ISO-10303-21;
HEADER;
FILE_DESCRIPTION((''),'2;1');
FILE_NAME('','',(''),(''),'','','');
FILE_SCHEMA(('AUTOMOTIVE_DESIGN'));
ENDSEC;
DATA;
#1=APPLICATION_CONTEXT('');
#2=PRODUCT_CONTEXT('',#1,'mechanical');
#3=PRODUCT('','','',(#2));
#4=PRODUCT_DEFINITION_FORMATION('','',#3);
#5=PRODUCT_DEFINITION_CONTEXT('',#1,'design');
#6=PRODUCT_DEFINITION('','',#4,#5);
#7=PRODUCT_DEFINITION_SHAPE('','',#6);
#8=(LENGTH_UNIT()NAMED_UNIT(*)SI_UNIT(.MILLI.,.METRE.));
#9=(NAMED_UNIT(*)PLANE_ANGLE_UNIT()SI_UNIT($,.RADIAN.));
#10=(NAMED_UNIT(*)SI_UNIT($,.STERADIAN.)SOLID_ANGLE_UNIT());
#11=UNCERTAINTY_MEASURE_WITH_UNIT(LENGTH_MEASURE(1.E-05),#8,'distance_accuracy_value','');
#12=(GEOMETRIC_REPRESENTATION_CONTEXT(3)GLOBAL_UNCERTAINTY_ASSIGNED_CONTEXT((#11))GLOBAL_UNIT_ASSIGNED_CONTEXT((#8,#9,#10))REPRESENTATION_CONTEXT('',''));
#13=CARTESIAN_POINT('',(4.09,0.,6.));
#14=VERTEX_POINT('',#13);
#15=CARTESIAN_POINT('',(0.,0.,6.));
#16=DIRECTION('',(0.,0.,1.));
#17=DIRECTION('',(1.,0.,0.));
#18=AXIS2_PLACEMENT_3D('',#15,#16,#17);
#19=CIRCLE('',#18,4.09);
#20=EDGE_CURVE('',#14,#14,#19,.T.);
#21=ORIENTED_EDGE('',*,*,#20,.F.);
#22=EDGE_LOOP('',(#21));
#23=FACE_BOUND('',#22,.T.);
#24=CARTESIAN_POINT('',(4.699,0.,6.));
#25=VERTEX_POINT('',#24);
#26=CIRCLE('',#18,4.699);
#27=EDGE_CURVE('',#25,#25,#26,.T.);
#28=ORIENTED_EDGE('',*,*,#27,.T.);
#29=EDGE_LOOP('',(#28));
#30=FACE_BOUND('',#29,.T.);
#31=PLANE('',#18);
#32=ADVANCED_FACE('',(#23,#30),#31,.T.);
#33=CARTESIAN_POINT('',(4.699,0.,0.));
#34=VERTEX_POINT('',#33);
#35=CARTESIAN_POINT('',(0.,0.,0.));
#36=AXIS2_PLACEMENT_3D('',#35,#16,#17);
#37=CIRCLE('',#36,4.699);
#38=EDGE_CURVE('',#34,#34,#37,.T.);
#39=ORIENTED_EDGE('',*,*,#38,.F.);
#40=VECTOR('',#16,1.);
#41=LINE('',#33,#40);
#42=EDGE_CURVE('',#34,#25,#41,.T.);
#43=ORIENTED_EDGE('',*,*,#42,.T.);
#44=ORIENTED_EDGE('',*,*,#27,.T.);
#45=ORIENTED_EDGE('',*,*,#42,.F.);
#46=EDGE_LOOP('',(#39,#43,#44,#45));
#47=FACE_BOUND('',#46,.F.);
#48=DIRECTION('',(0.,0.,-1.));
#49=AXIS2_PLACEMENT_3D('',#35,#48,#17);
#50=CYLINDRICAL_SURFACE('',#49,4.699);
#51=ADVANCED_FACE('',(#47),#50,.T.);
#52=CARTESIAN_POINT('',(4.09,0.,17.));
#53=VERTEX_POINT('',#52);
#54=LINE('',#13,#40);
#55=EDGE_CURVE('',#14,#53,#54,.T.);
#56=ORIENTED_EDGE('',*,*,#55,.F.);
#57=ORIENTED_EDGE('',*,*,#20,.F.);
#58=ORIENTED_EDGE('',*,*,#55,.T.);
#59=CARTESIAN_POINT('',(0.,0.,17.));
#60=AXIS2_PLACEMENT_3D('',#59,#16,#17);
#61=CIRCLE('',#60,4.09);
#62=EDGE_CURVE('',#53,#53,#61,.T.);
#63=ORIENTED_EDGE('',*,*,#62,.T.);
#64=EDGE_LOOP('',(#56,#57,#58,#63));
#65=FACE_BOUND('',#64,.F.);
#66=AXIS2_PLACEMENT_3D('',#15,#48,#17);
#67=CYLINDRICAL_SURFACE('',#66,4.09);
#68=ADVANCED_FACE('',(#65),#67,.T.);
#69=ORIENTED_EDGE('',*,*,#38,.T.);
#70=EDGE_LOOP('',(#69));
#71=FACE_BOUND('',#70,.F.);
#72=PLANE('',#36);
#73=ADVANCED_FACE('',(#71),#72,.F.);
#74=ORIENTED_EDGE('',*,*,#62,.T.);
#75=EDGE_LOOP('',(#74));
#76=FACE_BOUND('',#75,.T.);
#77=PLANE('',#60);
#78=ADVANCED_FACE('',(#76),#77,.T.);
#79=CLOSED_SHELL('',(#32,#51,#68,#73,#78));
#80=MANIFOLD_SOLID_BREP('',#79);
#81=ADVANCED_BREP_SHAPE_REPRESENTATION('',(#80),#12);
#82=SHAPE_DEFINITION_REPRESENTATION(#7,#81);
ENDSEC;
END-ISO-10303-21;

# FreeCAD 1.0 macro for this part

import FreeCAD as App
import Part
import Sketcher

V = App.Vector
Q = App.Units.Quantity

doc = App.newDocument("Part")
body = doc.addObject("PartDesign::Body", "Body")

sketch1 = body.newObject("Sketcher::SketchObject", "Sketch")
sketch1.AttachmentSupport = (doc.getObject("XY_Plane"), [""])
sketch1.MapMode = "FlatFace"
sketch1.addGeometry(Part.Circle(V(0, 0, 0), V(0, 0, 1), 4.7), False)
sketch1.addConstraint([
    Sketcher.Constraint("Coincident", 0, 3, -1, 1),
    Sketcher.Constraint("Diameter", 0, Q("9.398 mm")),
])
pad1 = body.newObject("PartDesign::Pad", "Pad")
pad1.Profile = sketch1
pad1.Length = 6

sketch2 = body.newObject("Sketcher::SketchObject", "Sketch001")
sketch2.AttachmentSupport = (doc.getObject("XY_Plane"), [""])
sketch2.MapMode = "FlatFace"
sketch2.AttachmentOffset = App.Placement(V(0, 0, 6), App.Rotation())
sketch2.addGeometry(Part.Circle(V(0, 0, 0), V(0, 0, 1), 4.1), False)
sketch2.addConstraint([
    Sketcher.Constraint("Coincident", 0, 3, -1, 1),
    Sketcher.Constraint("Diameter", 0, Q("8.18 mm")),
])
pad2 = body.newObject("PartDesign::Pad", "Pad001")
pad2.Profile = sketch2
pad2.Length = 11

doc.recompute()
